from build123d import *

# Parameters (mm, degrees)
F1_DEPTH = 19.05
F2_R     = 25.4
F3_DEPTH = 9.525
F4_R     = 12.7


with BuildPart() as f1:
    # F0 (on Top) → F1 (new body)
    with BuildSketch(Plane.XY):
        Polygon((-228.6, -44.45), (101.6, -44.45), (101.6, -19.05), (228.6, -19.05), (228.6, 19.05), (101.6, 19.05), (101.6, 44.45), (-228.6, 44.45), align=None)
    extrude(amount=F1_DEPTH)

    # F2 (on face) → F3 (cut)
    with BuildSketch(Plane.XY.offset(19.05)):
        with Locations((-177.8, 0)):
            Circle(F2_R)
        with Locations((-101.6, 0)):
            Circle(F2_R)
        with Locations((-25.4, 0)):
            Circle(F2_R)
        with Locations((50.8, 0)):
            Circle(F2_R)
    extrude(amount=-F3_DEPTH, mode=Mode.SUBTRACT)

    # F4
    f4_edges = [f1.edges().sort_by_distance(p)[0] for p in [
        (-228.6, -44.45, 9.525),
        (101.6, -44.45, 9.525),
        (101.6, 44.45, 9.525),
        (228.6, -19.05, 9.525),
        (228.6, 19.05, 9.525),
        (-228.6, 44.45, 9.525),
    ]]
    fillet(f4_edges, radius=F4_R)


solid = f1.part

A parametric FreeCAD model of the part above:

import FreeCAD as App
import Part
import Sketcher

V = App.Vector
Q = App.Units.Quantity


def edges_at(feature, points):
    """Names of the edges that pass closest to the given points."""
    edges = feature.Shape.Edges
    near = lambda p: min(range(len(edges)), key=lambda i: edges[i].distToShape(Part.Vertex(*p))[0])
    return sorted({f"Edge{near(p) + 1}" for p in points})

doc = App.newDocument("Part")
body = doc.addObject("PartDesign::Body", "Body")

# Sketch on XY plane
sketch1 = doc.addObject("Sketcher::SketchObject", "Sketch")
body.addObject(sketch1)
sketch1.AttachmentSupport = (doc.XY_Plane, [""])
sketch1.MapMode = "FlatFace"
sketch1.addGeometry([
    Part.LineSegment(V(-229, -44, 0), V(102, -44, 0)),  # 0
    Part.LineSegment(V(102, -44, 0), V(102, -19, 0)),  # 1
    Part.LineSegment(V(102, -19, 0), V(229, -19, 0)),  # 2
    Part.LineSegment(V(229, -19, 0), V(229, 19, 0)),  # 3
    Part.LineSegment(V(229, 19, 0), V(102, 19, 0)),  # 4
    Part.LineSegment(V(102, 19, 0), V(102, 44, 0)),  # 5
    Part.LineSegment(V(102, 44, 0), V(-229, 44, 0)),  # 6
    Part.LineSegment(V(-229, 44, 0), V(-229, -44, 0)),  # 7
], False)
sketch1.addConstraint([
    Sketcher.Constraint("Coincident", 0, 2, 1, 1),
    Sketcher.Constraint("Coincident", 1, 2, 2, 1),
    Sketcher.Constraint("Coincident", 2, 2, 3, 1),
    Sketcher.Constraint("Coincident", 3, 2, 4, 1),
    Sketcher.Constraint("Coincident", 4, 2, 5, 1),
    Sketcher.Constraint("Coincident", 5, 2, 6, 1),
    Sketcher.Constraint("Coincident", 6, 2, 7, 1),
    Sketcher.Constraint("Coincident", 7, 2, 0, 1),
    Sketcher.Constraint("Horizontal", 0),
    Sketcher.Constraint("Vertical", 1),
    Sketcher.Constraint("Horizontal", 2),
    Sketcher.Constraint("Vertical", 3),
    Sketcher.Constraint("Horizontal", 4),
    Sketcher.Constraint("Vertical", 5),
    Sketcher.Constraint("Horizontal", 6),
    Sketcher.Constraint("Vertical", 7),
    Sketcher.Constraint("Symmetric", 1, 2, 4, 2, -1),
    Sketcher.Constraint("Equal", 1, 5),
    Sketcher.Constraint("DistanceX", 0, 1, 0, 2, Q("13 in")),
    Sketcher.Constraint("DistanceX", 2, 1, 2, 2, Q("5 in")),
    Sketcher.Constraint("DistanceY", 1, 1, 1, 2, Q("1 in")),
    Sketcher.Constraint("DistanceY", 3, 1, 3, 2, Q("1.5 in")),
    Sketcher.Constraint("DistanceX", -1, 1, 0, 2, Q("4 in")),
])
pad1 = doc.addObject("PartDesign::Pad", "Pad")
body.addObject(pad1)
pad1.Profile = sketch1
pad1.Length = Q("0.75 in")

# Sketch on XY plane
sketch2 = doc.addObject("Sketcher::SketchObject", "Sketch001")
body.addObject(sketch2)
sketch2.AttachmentSupport = (doc.XY_Plane, [""])
sketch2.MapMode = "FlatFace"
sketch2.AttachmentOffset = App.Placement(V(0, 0, 0.75 * 25.4), App.Rotation())
sketch2.addGeometry([
    Part.Circle(V(-178, 0, 0), V(0, 0, 1), 25),
    Part.Circle(V(-102, 0, 0), V(0, 0, 1), 25),
    Part.Circle(V(-25, 0, 0), V(0, 0, 1), 25),
    Part.Circle(V(51, 0, 0), V(0, 0, 1), 25),
], False)
sketch2.addConstraint([
    Sketcher.Constraint("Equal", 0, 1),
    Sketcher.Constraint("Equal", 1, 2),
    Sketcher.Constraint("Equal", 2, 3),
    Sketcher.Constraint("PointOnObject", 0, 3, -1),
    Sketcher.Constraint("PointOnObject", 1, 3, -1),
    Sketcher.Constraint("PointOnObject", 2, 3, -1),
    Sketcher.Constraint("PointOnObject", 3, 3, -1),
    Sketcher.Constraint("Diameter", 0, Q("2 in")),
    Sketcher.Constraint("DistanceX", 0, 3, -1, 1, Q("7 in")),
    Sketcher.Constraint("DistanceX", 1, 3, -1, 1, Q("4 in")),
    Sketcher.Constraint("DistanceX", 2, 3, -1, 1, Q("1 in")),
    Sketcher.Constraint("DistanceX", -1, 1, 3, 3, Q("2 in")),
])
pocket1 = doc.addObject("PartDesign::Pocket", "Pocket")
body.addObject(pocket1)
pocket1.Profile = sketch2
pocket1.Length = Q("0.375 in")
doc.recompute()

fillet = doc.addObject("PartDesign::Fillet", "Fillet")
body.addObject(fillet)
fillet.Base = (pocket1, edges_at(pocket1, [
    (-228.6, -44.45, 9.525),
    (101.6, -44.45, 9.525),
    (101.6, 44.45, 9.525),
    (228.6, -19.05, 9.525),
    (228.6, 19.05, 9.525),
    (-228.6, 44.45, 9.525),
]))
fillet.Radius = Q("0.5 in")

doc.recompute()
